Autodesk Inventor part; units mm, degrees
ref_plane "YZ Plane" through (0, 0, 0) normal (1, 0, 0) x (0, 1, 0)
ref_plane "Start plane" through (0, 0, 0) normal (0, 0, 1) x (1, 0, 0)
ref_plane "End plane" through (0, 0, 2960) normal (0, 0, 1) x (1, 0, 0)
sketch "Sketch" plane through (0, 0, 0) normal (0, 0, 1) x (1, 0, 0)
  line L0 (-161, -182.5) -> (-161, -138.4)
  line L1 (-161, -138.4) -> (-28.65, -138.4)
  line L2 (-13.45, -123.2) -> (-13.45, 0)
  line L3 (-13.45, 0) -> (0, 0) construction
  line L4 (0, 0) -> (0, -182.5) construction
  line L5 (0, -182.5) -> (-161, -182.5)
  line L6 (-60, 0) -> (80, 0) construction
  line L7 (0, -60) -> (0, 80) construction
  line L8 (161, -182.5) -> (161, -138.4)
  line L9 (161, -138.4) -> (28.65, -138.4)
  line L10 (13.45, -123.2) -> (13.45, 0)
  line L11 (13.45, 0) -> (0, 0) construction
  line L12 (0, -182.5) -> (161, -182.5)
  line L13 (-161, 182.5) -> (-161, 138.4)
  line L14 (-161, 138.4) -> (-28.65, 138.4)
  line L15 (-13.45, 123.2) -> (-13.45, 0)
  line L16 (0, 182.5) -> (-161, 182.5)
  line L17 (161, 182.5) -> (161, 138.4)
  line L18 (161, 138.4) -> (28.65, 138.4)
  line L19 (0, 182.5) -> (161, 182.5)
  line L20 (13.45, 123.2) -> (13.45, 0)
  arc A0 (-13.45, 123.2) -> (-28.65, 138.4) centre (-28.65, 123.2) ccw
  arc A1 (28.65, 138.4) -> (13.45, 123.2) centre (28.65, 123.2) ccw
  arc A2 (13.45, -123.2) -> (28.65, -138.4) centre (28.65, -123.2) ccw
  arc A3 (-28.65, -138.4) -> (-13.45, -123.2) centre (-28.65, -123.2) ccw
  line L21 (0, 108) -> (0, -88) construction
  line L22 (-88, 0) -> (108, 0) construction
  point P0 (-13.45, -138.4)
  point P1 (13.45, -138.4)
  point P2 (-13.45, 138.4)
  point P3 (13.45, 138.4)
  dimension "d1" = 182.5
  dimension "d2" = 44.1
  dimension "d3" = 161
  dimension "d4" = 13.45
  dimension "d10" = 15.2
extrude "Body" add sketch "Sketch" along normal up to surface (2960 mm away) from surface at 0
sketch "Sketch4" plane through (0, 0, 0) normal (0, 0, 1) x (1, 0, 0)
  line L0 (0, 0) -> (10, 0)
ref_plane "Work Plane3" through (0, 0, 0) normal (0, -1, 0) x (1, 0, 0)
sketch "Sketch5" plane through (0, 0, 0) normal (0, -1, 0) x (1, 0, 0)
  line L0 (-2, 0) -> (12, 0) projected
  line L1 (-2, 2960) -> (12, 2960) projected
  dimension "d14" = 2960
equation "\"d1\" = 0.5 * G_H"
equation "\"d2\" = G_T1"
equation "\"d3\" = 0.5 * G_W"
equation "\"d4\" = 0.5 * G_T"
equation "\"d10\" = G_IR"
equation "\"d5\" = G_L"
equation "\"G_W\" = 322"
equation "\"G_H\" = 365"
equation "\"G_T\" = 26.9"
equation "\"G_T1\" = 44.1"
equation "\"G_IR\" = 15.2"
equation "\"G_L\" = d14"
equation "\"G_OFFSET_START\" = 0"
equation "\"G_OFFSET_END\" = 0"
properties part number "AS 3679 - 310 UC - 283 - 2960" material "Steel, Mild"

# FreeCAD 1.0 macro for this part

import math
import FreeCAD as App
import Part
import Sketcher
Q = App.Units.Quantity

doc = App.newDocument("Part")
body = doc.addObject("PartDesign::Body", "Body")

sketch1 = body.newObject("Sketcher::SketchObject", "Sketch")
sketch1.AttachmentSupport = (doc.getObject("XY_Plane"), [""])
sketch1.MapMode = "FlatFace"
sketch1.addGeometry([
    Part.LineSegment(App.Vector(-161, -138.4, 0), App.Vector(-161, -182.5, 0)),
    Part.LineSegment(App.Vector(-161, -182.5, 0), App.Vector(161, -182.5, 0)),
    Part.LineSegment(App.Vector(161, -182.5, 0), App.Vector(161, -138.4, 0)),
    Part.LineSegment(App.Vector(161, -138.4, 0), App.Vector(28.65, -138.4, 0)),
    Part.ArcOfCircle(Part.Circle(App.Vector(28.65, -123.2, 0), App.Vector(0, 0, 1), 15.2), math.radians(180), math.radians(270)),
    Part.LineSegment(App.Vector(13.45, -123.2, 0), App.Vector(13.45, 123.2, 0)),
    Part.ArcOfCircle(Part.Circle(App.Vector(28.65, 123.2, 0), App.Vector(0, 0, 1), 15.2), math.radians(90), math.radians(180)),
    Part.LineSegment(App.Vector(28.65, 138.4, 0), App.Vector(161, 138.4, 0)),
    Part.LineSegment(App.Vector(161, 138.4, 0), App.Vector(161, 182.5, 0)),
    Part.LineSegment(App.Vector(161, 182.5, 0), App.Vector(-161, 182.5, 0)),
    Part.LineSegment(App.Vector(-161, 182.5, 0), App.Vector(-161, 138.4, 0)),
    Part.LineSegment(App.Vector(-161, 138.4, 0), App.Vector(-28.65, 138.4, 0)),
    Part.ArcOfCircle(Part.Circle(App.Vector(-28.65, 123.2, 0), App.Vector(0, 0, 1), 15.2), math.radians(0), math.radians(90)),
    Part.LineSegment(App.Vector(-13.45, 123.2, 0), App.Vector(-13.45, -123.2, 0)),
    Part.ArcOfCircle(Part.Circle(App.Vector(-28.65, -123.2, 0), App.Vector(0, 0, 1), 15.2), math.radians(-90), math.radians(0)),
    Part.LineSegment(App.Vector(-28.65, -138.4, 0), App.Vector(-161, -138.4, 0)),
], False)
sketch1.addConstraint([
    Sketcher.Constraint("Coincident", 0, 2, 1, 1),
    Sketcher.Constraint("Coincident", 1, 2, 2, 1),
    Sketcher.Constraint("Coincident", 2, 2, 3, 1),
    Sketcher.Constraint("Tangent", 3, 2, 4, 2),
    Sketcher.Constraint("Tangent", 4, 1, 5, 1),
    Sketcher.Constraint("Tangent", 5, 2, 6, 2),
    Sketcher.Constraint("Tangent", 6, 1, 7, 1),
    Sketcher.Constraint("Coincident", 7, 2, 8, 1),
    Sketcher.Constraint("Coincident", 8, 2, 9, 1),
    Sketcher.Constraint("Coincident", 9, 2, 10, 1),
    Sketcher.Constraint("Coincident", 10, 2, 11, 1),
    Sketcher.Constraint("Tangent", 11, 2, 12, 2),
    Sketcher.Constraint("Tangent", 12, 1, 13, 1),
    Sketcher.Constraint("Tangent", 13, 2, 14, 2),
    Sketcher.Constraint("Tangent", 14, 1, 15, 1),
    Sketcher.Constraint("Coincident", 15, 2, 0, 1),
    Sketcher.Constraint("Vertical", 0),
    Sketcher.Constraint("Horizontal", 1),
    Sketcher.Constraint("Vertical", 2),
    Sketcher.Constraint("Horizontal", 3),
    Sketcher.Constraint("Vertical", 5),
    Sketcher.Constraint("Horizontal", 7),
    Sketcher.Constraint("Vertical", 8),
    Sketcher.Constraint("Horizontal", 9),
    Sketcher.Constraint("Vertical", 10),
    Sketcher.Constraint("Horizontal", 11),
    Sketcher.Constraint("Vertical", 13),
    Sketcher.Constraint("Horizontal", 15),
    Sketcher.Constraint("Equal", 4, 6),
    Sketcher.Constraint("Equal", 6, 12),
    Sketcher.Constraint("Equal", 12, 14),
    Sketcher.Constraint("Symmetric", 4, 3, 12, 3, -1, 1),
    Sketcher.Constraint("Symmetric", 0, 2, 8, 2, -1, 1),
    Sketcher.Constraint("Symmetric", 7, 2, 10, 2, -2),
    Sketcher.Constraint("Symmetric", 2, 2, 15, 2, -2),
    Sketcher.Constraint("Radius", 4, Q("15.2 mm")),
    Sketcher.Constraint("DistanceY", 0, 2, 0, 1, Q("44.1 mm")),
    Sketcher.Constraint("DistanceX", 0, 2, -1, 1, Q("161 mm")),
    Sketcher.Constraint("DistanceY", 0, 2, -1, 1, Q("182.5 mm")),
    Sketcher.Constraint("DistanceX", -1, 1, 4, 1, Q("13.45 mm")),
])
pad1 = body.newObject("PartDesign::Pad", "Pad")
pad1.Profile = sketch1
pad1.Length = 2960

doc.recompute()
